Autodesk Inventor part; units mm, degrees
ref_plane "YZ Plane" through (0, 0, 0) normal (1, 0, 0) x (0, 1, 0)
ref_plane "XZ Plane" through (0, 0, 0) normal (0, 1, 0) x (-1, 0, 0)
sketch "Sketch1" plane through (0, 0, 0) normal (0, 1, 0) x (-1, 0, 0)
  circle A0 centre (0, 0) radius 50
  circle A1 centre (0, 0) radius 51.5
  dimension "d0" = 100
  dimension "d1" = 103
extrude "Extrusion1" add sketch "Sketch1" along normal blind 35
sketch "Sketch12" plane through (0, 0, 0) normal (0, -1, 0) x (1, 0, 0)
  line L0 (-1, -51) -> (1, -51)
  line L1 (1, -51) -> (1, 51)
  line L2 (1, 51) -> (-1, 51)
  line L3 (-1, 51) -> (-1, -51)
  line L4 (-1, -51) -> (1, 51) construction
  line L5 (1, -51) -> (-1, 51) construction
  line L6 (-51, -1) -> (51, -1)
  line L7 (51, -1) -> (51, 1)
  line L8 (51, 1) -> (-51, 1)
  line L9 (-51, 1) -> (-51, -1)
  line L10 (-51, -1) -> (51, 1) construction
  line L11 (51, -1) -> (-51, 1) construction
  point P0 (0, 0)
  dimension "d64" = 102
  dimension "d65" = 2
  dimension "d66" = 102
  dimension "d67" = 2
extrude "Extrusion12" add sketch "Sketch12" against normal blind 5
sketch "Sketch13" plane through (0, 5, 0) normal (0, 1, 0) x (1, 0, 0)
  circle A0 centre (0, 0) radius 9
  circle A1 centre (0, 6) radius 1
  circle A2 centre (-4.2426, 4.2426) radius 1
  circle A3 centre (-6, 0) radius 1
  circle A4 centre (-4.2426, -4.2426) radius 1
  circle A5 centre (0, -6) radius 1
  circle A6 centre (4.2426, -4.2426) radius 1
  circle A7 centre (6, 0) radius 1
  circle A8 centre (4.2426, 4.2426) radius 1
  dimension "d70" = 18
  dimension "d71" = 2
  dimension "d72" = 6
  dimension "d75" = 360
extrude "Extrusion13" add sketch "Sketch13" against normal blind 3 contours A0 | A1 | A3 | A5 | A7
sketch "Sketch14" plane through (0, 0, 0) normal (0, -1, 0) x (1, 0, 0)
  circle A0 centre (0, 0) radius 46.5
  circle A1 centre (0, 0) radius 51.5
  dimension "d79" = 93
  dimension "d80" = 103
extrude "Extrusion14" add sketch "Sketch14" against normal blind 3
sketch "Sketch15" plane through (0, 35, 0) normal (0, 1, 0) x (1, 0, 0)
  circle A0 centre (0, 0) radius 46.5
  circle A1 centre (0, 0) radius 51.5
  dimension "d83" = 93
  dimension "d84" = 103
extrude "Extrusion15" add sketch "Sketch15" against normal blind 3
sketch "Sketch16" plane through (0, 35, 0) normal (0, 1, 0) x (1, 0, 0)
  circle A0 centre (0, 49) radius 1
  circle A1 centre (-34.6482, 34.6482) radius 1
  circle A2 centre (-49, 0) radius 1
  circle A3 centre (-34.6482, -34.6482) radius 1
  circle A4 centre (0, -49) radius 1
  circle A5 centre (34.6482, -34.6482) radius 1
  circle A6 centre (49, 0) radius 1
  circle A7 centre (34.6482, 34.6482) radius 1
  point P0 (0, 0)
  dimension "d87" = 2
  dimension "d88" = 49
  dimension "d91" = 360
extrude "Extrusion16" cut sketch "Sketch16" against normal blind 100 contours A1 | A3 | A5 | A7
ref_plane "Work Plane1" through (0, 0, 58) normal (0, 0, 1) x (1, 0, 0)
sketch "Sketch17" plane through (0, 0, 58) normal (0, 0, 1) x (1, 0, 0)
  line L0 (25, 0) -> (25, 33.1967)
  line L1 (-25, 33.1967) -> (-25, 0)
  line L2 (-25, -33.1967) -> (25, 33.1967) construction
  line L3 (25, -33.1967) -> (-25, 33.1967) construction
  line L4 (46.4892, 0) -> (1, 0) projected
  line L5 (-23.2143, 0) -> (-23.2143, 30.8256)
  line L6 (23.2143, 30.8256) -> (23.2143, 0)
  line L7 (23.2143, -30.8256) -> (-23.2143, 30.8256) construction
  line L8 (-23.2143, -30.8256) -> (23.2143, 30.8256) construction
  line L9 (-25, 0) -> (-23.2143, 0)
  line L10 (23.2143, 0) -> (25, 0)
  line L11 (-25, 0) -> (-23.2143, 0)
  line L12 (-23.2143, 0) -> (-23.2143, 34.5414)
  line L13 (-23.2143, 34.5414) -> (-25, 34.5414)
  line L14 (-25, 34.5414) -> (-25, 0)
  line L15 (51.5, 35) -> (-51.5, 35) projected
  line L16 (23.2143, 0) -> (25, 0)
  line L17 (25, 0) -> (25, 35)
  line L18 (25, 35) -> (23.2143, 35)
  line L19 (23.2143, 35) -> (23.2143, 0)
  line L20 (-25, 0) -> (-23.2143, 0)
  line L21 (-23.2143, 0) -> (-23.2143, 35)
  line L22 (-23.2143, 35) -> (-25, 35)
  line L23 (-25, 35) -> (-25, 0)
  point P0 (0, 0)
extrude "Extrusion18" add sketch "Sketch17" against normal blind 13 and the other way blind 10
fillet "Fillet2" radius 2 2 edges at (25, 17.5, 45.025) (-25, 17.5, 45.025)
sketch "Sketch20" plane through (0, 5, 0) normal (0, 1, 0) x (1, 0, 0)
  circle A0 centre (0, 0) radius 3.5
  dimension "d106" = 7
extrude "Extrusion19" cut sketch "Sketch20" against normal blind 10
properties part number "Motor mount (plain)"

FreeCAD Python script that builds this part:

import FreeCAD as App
import Part
import Sketcher


def edges_at(feature, points):
    """Names of the edges that pass closest to the given points."""
    edges = feature.Shape.Edges
    near = lambda p: min(range(len(edges)), key=lambda i: edges[i].distToShape(Part.Vertex(*p))[0])
    return sorted({f"Edge{near(p) + 1}" for p in points})

doc = App.newDocument("Part")
body = doc.addObject("PartDesign::Body", "Body")

# Sketch on XZ plane
sketch1 = body.newObject("Sketcher::SketchObject", "Sketch")
sketch1.AttachmentSupport = (doc.getObject("XZ_Plane"), [""])
sketch1.MapMode = "FlatFace"
sketch1.addGeometry([
    Part.Circle(App.Vector(0, 0, 0), App.Vector(0, 0, 1), 52),
    Part.Circle(App.Vector(0, 0, 0), App.Vector(0, 0, 1), 50),
], False)
sketch1.addConstraint([
    Sketcher.Constraint("Coincident", 0, 3, -1, 1),
    Sketcher.Constraint("Coincident", 1, 3, -1, 1),
    Sketcher.Constraint("Diameter", 0, 103.0),
    Sketcher.Constraint("Diameter", 1, 100.0),
])
pad1 = body.newObject("PartDesign::Pad", "Pad")
pad1.Profile = sketch1
pad1.Length = 35
pad1.Reversed = True

# Sketch on XZ plane
sketch2 = body.newObject("Sketcher::SketchObject", "Sketch001")
sketch2.AttachmentSupport = (doc.getObject("XZ_Plane"), [""])
sketch2.MapMode = "FlatFace"
sketch2.addGeometry([
    Part.LineSegment(App.Vector(-1, -1, 0), App.Vector(-1, -51, 0)),  # 0
    Part.LineSegment(App.Vector(-1, -51, 0), App.Vector(1, -51, 0)),  # 1
    Part.LineSegment(App.Vector(1, -51, 0), App.Vector(1, -1, 0)),  # 2
    Part.LineSegment(App.Vector(1, -1, 0), App.Vector(51, -1, 0)),  # 3
    Part.LineSegment(App.Vector(51, -1, 0), App.Vector(51, 1, 0)),  # 4
    Part.LineSegment(App.Vector(51, 1, 0), App.Vector(1, 1, 0)),  # 5
    Part.LineSegment(App.Vector(1, 1, 0), App.Vector(1, 51, 0)),  # 6
    Part.LineSegment(App.Vector(1, 51, 0), App.Vector(-1, 51, 0)),  # 7
    Part.LineSegment(App.Vector(-1, 51, 0), App.Vector(-1, 1, 0)),  # 8
    Part.LineSegment(App.Vector(-1, 1, 0), App.Vector(-51, 1, 0)),  # 9
    Part.LineSegment(App.Vector(-51, 1, 0), App.Vector(-51, -1, 0)),  # 10
    Part.LineSegment(App.Vector(-51, -1, 0), App.Vector(-1, -1, 0)),  # 11
], False)
sketch2.addConstraint([
    Sketcher.Constraint("Coincident", 0, 2, 1, 1),
    Sketcher.Constraint("Coincident", 1, 2, 2, 1),
    Sketcher.Constraint("Coincident", 2, 2, 3, 1),
    Sketcher.Constraint("Coincident", 3, 2, 4, 1),
    Sketcher.Constraint("Coincident", 4, 2, 5, 1),
    Sketcher.Constraint("Coincident", 5, 2, 6, 1),
    Sketcher.Constraint("Coincident", 6, 2, 7, 1),
    Sketcher.Constraint("Coincident", 7, 2, 8, 1),
    Sketcher.Constraint("Coincident", 8, 2, 9, 1),
    Sketcher.Constraint("Coincident", 9, 2, 10, 1),
    Sketcher.Constraint("Coincident", 10, 2, 11, 1),
    Sketcher.Constraint("Coincident", 11, 2, 0, 1),
    Sketcher.Constraint("Vertical", 0),
    Sketcher.Constraint("Horizontal", 1),
    Sketcher.Constraint("Vertical", 2),
    Sketcher.Constraint("Horizontal", 3),
    Sketcher.Constraint("Vertical", 4),
    Sketcher.Constraint("Horizontal", 5),
    Sketcher.Constraint("Vertical", 6),
    Sketcher.Constraint("Horizontal", 7),
    Sketcher.Constraint("Vertical", 8),
    Sketcher.Constraint("Horizontal", 9),
    Sketcher.Constraint("Vertical", 10),
    Sketcher.Constraint("Horizontal", 11),
    Sketcher.Constraint("Symmetric", 0, 2, 6, 2, -1, 1),
    Sketcher.Constraint("Symmetric", 2, 2, 8, 2, -1, 1),
    Sketcher.Constraint("Symmetric", 4, 2, 10, 2, -1, 1),
    Sketcher.Constraint("Symmetric", 5, 2, 8, 2, -2),
    Sketcher.Constraint("Equal", 11, 0),
    Sketcher.Constraint("Equal", 7, 4),
    Sketcher.Constraint("DistanceX", 1, 1, 1, 2, 2.0),
    Sketcher.Constraint("DistanceY", 1, 2, 6, 2, 102.0),
])
pad2 = body.newObject("PartDesign::Pad", "Pad001")
pad2.Profile = sketch2
pad2.Length = 5
pad2.Reversed = True

# Sketch on XZ plane
sketch3 = body.newObject("Sketcher::SketchObject", "Sketch002")
sketch3.AttachmentSupport = (doc.getObject("XZ_Plane"), [""])
sketch3.MapMode = "FlatFace"
sketch3.AttachmentOffset = App.Placement(App.Vector(0, 0, -5), App.Rotation())
sketch3.addGeometry([
    Part.Circle(App.Vector(0, 0, 0), App.Vector(0, 0, 1), 9),  # 0
    Part.Circle(App.Vector(-4.2, 4.2, 0), App.Vector(0, 0, 1), 1),  # 1
    Part.Circle(App.Vector(4.2, 4.2, 0), App.Vector(0, 0, 1), 1),  # 2
    Part.Circle(App.Vector(-4.2, -4.2, 0), App.Vector(0, 0, 1), 1),  # 3
    Part.Circle(App.Vector(4.2, -4.2, 0), App.Vector(0, 0, 1), 1),  # 4
], False)
sketch3.addConstraint([
    Sketcher.Constraint("Coincident", 0, 3, -1, 1),
    Sketcher.Constraint("Equal", 1, 2),
    Sketcher.Constraint("Equal", 2, 3),
    Sketcher.Constraint("Equal", 3, 4),
    Sketcher.Constraint("Symmetric", 2, 3, 3, 3, -1, 1),
    Sketcher.Constraint("Symmetric", 1, 3, 4, 3, -1, 1),
    Sketcher.Constraint("Symmetric", 1, 3, 2, 3, -2),
    Sketcher.Constraint("Diameter", 0, 18.0),
    Sketcher.Constraint("Diameter", 1, 2.0),
    Sketcher.Constraint("DistanceX", 1, 3, -1, 1, 4.2426),
    Sketcher.Constraint("DistanceY", -1, 1, 1, 3, 4.2426),
])
pad3 = body.newObject("PartDesign::Pad", "Pad002")
pad3.Profile = sketch3
pad3.Length = 3

# Sketch on XZ plane
sketch4 = body.newObject("Sketcher::SketchObject", "Sketch003")
sketch4.AttachmentSupport = (doc.getObject("XZ_Plane"), [""])
sketch4.MapMode = "FlatFace"
sketch4.addGeometry([
    Part.Circle(App.Vector(0, 0, 0), App.Vector(0, 0, 1), 52),
    Part.Circle(App.Vector(0, 0, 0), App.Vector(0, 0, 1), 46),
], False)
sketch4.addConstraint([
    Sketcher.Constraint("Coincident", 0, 3, -1, 1),
    Sketcher.Constraint("Coincident", 1, 3, -1, 1),
    Sketcher.Constraint("Diameter", 0, 103.0),
    Sketcher.Constraint("Diameter", 1, 93.0),
])
pad4 = body.newObject("PartDesign::Pad", "Pad003")
pad4.Profile = sketch4
pad4.Length = 3
pad4.Reversed = True

# Sketch on XZ plane
sketch5 = body.newObject("Sketcher::SketchObject", "Sketch004")
sketch5.AttachmentSupport = (doc.getObject("XZ_Plane"), [""])
sketch5.MapMode = "FlatFace"
sketch5.AttachmentOffset = App.Placement(App.Vector(0, 0, -35), App.Rotation())
sketch5.addGeometry([
    Part.Circle(App.Vector(0, 0, 0), App.Vector(0, 0, 1), 52),
    Part.Circle(App.Vector(0, 0, 0), App.Vector(0, 0, 1), 46),
], False)
sketch5.addConstraint([
    Sketcher.Constraint("Coincident", 0, 3, -1, 1),
    Sketcher.Constraint("Coincident", 1, 3, -1, 1),
    Sketcher.Constraint("Diameter", 0, 103.0),
    Sketcher.Constraint("Diameter", 1, 93.0),
])
pad5 = body.newObject("PartDesign::Pad", "Pad004")
pad5.Profile = sketch5
pad5.Length = 3

# Sketch on XZ plane
sketch6 = body.newObject("Sketcher::SketchObject", "Sketch005")
sketch6.AttachmentSupport = (doc.getObject("XZ_Plane"), [""])
sketch6.MapMode = "FlatFace"
sketch6.AttachmentOffset = App.Placement(App.Vector(0, 0, -35), App.Rotation())
sketch6.addGeometry([
    Part.Circle(App.Vector(-34.6, -34.6, 0), App.Vector(0, 0, 1), 1),
    Part.Circle(App.Vector(-34.6, 34.6, 0), App.Vector(0, 0, 1), 1),
    Part.Circle(App.Vector(34.6, 34.6, 0), App.Vector(0, 0, 1), 1),
    Part.Circle(App.Vector(34.6, -34.6, 0), App.Vector(0, 0, 1), 1),
], False)
sketch6.addConstraint([
    Sketcher.Constraint("Equal", 0, 1),
    Sketcher.Constraint("Equal", 1, 2),
    Sketcher.Constraint("Equal", 2, 3),
    Sketcher.Constraint("Symmetric", 0, 3, 2, 3, -1, 1),
    Sketcher.Constraint("Symmetric", 1, 3, 3, 3, -1, 1),
    Sketcher.Constraint("Symmetric", 1, 3, 2, 3, -2),
    Sketcher.Constraint("Diameter", 0, 2.0),
    Sketcher.Constraint("DistanceX", 0, 3, -1, 1, 34.6482),
    Sketcher.Constraint("DistanceY", 0, 3, -1, 1, 34.6482),
])
pocket1 = body.newObject("PartDesign::Pocket", "Pocket")
pocket1.Profile = sketch6
pocket1.Length = 100
pocket1.Reversed = True

# Sketch on XY plane
sketch7 = body.newObject("Sketcher::SketchObject", "Sketch006")
sketch7.AttachmentSupport = (doc.getObject("XY_Plane"), [""])
sketch7.MapMode = "FlatFace"
sketch7.AttachmentOffset = App.Placement(App.Vector(0, 0, 58), App.Rotation())
sketch7.addGeometry([
    Part.LineSegment(App.Vector(23.2, 0, 0), App.Vector(25, 0, 0)),  # 0
    Part.LineSegment(App.Vector(25, 0, 0), App.Vector(25, 35, 0)),  # 1
    Part.LineSegment(App.Vector(25, 35, 0), App.Vector(23.2, 35, 0)),  # 2
    Part.LineSegment(App.Vector(23.2, 35, 0), App.Vector(23.2, 0, 0)),  # 3
    Part.LineSegment(App.Vector(-23.2, 35, 0), App.Vector(-25, 35, 0)),  # 4
    Part.LineSegment(App.Vector(-25, 35, 0), App.Vector(-25, 0, 0)),  # 5
    Part.LineSegment(App.Vector(-25, 0, 0), App.Vector(-23.2, 0, 0)),  # 6
    Part.LineSegment(App.Vector(-23.2, 0, 0), App.Vector(-23.2, 35, 0)),  # 7
], False)
sketch7.addConstraint([
    Sketcher.Constraint("Coincident", 0, 2, 1, 1),
    Sketcher.Constraint("Coincident", 1, 2, 2, 1),
    Sketcher.Constraint("Coincident", 2, 2, 3, 1),
    Sketcher.Constraint("Coincident", 3, 2, 0, 1),
    Sketcher.Constraint("Coincident", 4, 2, 5, 1),
    Sketcher.Constraint("Coincident", 5, 2, 6, 1),
    Sketcher.Constraint("Coincident", 6, 2, 7, 1),
    Sketcher.Constraint("Coincident", 7, 2, 4, 1),
    Sketcher.Constraint("Horizontal", 0),
    Sketcher.Constraint("Vertical", 1),
    Sketcher.Constraint("Horizontal", 2),
    Sketcher.Constraint("Vertical", 3),
    Sketcher.Constraint("Horizontal", 4),
    Sketcher.Constraint("Vertical", 5),
    Sketcher.Constraint("Horizontal", 6),
    Sketcher.Constraint("Vertical", 7),
    Sketcher.Constraint("Symmetric", 0, 2, 5, 2, -1, 1),
    Sketcher.Constraint("Symmetric", 3, 2, 6, 2, -2),
    Sketcher.Constraint("Horizontal", 2, 2, 4, 2),
    Sketcher.Constraint("DistanceY", 1, 1, 1, 2, 35.0),
    Sketcher.Constraint("DistanceX", -1, 1, 0, 2, 25.0),
    Sketcher.Constraint("DistanceX", 0, 1, 0, 2, 1.7857),
])
pad6 = body.newObject("PartDesign::Pad", "Pad005")
pad6.Profile = sketch7
pad6.Type = "TwoLengths"
pad6.Length = 13
pad6.Length2 = 10
pad6.Reversed = True
doc.recompute()

fillet = body.newObject("PartDesign::Fillet", "Fillet")
fillet.Base = (pad6, edges_at(pad6, [(25, 17.5, 45.025), (-25, 17.5, 45.025)]))
fillet.Radius = 2

# Sketch on XZ plane
sketch8 = body.newObject("Sketcher::SketchObject", "Sketch007")
sketch8.AttachmentSupport = (doc.getObject("XZ_Plane"), [""])
sketch8.MapMode = "FlatFace"
sketch8.AttachmentOffset = App.Placement(App.Vector(0, 0, -5), App.Rotation())
sketch8.addGeometry(Part.Circle(App.Vector(0, 0, 0), App.Vector(0, 0, 1), 3.5), False)
sketch8.addConstraint([
    Sketcher.Constraint("Coincident", 0, 3, -1, 1),
    Sketcher.Constraint("Diameter", 0, 7.0),
])
pocket2 = body.newObject("PartDesign::Pocket", "Pocket001")
pocket2.Profile = sketch8
pocket2.Length = 10
pocket2.Reversed = True

doc.recompute()
